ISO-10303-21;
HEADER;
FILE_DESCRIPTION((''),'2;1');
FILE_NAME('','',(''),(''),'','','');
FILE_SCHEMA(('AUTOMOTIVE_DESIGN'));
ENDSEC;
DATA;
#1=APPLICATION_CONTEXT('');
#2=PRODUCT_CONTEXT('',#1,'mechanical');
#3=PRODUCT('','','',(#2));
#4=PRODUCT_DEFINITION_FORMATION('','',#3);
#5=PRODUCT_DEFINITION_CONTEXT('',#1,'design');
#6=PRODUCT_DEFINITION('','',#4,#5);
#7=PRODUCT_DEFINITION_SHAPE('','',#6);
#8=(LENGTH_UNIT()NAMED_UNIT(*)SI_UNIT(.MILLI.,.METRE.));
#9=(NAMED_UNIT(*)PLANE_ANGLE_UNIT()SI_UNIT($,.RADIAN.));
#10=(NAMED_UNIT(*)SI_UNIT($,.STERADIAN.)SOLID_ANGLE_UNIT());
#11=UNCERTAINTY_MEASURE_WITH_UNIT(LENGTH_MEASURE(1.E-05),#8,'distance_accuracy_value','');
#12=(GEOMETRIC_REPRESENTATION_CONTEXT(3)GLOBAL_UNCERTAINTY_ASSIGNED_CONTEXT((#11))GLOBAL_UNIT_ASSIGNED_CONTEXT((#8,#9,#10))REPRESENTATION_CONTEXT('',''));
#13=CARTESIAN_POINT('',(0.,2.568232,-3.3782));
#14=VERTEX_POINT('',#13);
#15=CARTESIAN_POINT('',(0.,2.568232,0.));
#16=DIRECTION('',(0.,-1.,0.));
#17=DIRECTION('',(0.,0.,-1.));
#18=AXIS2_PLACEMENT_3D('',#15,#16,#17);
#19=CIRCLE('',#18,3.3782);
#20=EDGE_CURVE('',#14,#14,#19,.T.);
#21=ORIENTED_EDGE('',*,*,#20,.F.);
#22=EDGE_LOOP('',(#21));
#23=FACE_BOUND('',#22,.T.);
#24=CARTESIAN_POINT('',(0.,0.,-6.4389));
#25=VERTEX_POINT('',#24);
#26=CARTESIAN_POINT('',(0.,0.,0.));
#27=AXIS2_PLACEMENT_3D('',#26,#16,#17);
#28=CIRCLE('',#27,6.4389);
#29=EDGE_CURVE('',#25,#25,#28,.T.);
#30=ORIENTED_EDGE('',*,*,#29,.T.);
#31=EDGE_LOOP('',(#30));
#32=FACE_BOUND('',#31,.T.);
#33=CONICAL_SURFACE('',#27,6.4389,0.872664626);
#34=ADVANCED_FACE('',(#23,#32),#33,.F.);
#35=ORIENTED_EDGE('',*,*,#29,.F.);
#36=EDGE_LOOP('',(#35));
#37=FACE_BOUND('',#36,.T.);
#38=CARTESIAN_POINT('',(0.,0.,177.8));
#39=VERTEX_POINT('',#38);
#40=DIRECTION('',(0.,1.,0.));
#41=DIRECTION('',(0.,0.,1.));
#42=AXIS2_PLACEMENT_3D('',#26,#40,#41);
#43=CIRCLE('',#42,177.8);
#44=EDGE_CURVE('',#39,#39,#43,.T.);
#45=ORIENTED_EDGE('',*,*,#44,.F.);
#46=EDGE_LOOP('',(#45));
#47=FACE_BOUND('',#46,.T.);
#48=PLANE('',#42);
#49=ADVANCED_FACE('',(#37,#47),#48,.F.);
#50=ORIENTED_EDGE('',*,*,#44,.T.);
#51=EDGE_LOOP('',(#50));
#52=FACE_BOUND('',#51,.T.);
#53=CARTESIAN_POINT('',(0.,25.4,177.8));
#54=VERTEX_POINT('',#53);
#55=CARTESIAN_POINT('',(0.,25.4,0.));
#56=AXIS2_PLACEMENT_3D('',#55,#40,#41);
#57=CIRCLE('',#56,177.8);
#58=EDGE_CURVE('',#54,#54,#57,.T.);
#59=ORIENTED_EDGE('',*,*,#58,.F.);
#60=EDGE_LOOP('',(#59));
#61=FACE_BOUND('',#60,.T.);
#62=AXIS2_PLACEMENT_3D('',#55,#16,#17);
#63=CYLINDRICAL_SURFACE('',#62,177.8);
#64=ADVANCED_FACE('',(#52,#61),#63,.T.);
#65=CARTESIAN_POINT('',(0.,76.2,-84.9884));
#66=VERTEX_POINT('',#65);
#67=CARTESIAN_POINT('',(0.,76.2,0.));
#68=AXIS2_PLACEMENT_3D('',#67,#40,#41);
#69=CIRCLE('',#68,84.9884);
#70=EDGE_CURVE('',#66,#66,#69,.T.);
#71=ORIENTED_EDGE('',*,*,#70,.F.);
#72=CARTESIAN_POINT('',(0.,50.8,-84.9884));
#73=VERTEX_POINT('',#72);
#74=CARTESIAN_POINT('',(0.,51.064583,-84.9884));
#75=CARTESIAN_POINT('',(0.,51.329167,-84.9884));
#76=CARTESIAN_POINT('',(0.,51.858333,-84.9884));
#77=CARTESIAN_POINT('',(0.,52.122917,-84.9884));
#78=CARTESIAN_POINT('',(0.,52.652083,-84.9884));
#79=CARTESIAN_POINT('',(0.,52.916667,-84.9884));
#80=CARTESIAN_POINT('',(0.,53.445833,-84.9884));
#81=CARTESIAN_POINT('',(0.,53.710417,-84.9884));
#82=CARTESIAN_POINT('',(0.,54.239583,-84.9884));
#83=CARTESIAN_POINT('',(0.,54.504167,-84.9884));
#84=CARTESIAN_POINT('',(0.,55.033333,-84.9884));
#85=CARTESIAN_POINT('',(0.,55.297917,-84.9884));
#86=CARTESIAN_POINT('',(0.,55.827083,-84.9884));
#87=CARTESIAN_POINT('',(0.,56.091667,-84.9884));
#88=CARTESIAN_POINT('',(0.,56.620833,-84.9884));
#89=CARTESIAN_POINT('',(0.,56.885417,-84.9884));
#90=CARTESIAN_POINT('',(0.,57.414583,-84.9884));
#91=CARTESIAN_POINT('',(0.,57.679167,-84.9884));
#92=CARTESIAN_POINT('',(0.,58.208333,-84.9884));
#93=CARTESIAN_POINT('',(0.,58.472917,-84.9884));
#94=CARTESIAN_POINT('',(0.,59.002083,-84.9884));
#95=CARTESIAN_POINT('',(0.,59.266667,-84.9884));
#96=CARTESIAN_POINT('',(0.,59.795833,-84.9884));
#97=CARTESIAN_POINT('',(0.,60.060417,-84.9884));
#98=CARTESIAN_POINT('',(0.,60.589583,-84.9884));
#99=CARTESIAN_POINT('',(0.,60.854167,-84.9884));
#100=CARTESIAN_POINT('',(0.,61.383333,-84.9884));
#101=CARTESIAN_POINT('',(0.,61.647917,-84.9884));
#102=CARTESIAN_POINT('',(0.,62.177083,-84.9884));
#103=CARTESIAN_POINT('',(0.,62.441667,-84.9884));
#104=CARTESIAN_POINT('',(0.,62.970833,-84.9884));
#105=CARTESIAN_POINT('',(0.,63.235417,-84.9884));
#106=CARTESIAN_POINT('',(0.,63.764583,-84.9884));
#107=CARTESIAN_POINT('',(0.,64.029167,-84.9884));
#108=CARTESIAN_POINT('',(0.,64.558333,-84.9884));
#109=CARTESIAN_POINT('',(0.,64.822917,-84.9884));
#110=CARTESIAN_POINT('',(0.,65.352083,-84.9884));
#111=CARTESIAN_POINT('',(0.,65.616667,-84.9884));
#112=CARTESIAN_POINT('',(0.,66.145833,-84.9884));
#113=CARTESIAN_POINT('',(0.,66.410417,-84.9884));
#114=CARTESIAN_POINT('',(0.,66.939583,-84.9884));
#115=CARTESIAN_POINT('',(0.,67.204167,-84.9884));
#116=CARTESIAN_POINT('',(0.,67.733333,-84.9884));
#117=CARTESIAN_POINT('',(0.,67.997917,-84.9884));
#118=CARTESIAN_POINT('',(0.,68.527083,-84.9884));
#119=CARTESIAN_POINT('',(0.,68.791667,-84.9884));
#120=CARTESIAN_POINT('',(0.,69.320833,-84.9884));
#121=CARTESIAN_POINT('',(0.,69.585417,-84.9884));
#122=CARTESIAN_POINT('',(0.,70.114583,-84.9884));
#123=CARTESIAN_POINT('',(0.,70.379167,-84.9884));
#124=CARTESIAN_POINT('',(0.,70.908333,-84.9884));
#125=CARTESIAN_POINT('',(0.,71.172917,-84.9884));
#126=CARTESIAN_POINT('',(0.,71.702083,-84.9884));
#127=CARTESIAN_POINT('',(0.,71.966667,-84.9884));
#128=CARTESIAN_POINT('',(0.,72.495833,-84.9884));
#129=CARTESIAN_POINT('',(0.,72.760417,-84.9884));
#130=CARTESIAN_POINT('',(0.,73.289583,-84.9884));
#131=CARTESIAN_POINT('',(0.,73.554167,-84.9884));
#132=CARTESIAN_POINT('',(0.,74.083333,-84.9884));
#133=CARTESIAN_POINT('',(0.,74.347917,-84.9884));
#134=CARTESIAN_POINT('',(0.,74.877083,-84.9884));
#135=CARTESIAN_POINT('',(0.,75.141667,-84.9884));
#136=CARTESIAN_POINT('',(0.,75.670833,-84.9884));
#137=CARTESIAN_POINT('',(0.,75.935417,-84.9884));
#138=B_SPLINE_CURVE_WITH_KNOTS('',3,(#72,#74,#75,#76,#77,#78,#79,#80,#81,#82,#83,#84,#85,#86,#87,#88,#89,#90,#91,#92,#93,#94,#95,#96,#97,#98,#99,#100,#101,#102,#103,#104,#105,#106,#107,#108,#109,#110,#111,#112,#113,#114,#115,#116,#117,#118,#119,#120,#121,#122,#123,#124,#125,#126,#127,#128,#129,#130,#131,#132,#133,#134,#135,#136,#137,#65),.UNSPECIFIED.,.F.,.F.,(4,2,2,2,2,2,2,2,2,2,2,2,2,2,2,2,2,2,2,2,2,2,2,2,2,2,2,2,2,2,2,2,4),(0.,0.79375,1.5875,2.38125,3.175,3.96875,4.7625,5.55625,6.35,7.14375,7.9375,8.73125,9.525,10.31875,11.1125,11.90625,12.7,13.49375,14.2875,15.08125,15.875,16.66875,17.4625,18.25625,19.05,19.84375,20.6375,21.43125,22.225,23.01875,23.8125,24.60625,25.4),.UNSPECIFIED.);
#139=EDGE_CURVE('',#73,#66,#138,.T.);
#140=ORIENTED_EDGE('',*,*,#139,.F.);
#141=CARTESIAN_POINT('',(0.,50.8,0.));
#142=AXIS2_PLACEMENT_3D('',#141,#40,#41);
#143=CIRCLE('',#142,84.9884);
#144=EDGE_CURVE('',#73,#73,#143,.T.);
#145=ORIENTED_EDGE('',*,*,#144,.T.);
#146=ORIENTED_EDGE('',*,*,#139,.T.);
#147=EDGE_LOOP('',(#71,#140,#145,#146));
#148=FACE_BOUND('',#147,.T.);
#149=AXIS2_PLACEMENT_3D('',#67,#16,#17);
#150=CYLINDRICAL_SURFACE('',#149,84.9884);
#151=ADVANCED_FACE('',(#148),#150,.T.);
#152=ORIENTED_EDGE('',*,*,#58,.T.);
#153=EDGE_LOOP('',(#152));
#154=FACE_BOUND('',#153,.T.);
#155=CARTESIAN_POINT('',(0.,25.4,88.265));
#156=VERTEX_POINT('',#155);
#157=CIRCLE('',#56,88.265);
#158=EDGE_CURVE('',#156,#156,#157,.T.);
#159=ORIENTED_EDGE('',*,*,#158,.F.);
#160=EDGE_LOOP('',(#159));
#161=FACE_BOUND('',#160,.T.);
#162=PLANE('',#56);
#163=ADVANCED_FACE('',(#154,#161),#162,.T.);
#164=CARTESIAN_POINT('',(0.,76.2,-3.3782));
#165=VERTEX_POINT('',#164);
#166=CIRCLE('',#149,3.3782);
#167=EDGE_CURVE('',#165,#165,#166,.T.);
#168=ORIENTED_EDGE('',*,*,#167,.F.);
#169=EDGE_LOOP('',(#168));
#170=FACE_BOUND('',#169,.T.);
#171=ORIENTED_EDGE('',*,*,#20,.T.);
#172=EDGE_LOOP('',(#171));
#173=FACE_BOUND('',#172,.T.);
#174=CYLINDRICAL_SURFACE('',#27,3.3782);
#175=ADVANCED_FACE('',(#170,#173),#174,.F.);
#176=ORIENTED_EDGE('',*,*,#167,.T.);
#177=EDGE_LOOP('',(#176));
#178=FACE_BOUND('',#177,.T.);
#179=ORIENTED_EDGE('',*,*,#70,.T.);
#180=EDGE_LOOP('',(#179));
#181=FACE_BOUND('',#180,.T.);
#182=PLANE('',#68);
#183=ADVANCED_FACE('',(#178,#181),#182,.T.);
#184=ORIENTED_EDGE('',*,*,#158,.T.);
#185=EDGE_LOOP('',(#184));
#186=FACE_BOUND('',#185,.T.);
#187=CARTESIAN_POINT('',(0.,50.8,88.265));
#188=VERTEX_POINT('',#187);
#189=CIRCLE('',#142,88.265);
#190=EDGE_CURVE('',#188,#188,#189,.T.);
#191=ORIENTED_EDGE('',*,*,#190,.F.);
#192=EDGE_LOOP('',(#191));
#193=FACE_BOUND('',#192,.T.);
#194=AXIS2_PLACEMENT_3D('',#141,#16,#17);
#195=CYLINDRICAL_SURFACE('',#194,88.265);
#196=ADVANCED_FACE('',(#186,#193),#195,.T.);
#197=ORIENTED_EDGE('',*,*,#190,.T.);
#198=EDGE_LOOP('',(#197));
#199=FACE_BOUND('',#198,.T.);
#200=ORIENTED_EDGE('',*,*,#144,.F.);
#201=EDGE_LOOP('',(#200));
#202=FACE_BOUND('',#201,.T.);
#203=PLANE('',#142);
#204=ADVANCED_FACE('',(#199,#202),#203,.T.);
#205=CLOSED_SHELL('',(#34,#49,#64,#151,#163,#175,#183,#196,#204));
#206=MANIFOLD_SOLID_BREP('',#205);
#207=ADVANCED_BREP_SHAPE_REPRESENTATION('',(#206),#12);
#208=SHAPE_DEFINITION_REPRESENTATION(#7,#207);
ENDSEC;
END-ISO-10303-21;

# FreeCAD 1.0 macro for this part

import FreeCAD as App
import Part
import Sketcher
from FreeCAD import Vector
Q = App.Units.Quantity

doc = App.newDocument("Part")
body = doc.addObject("PartDesign::Body", "Body")

sketch1 = body.newObject("Sketcher::SketchObject", "Sketch")
sketch1.AttachmentSupport = (doc.getObject("XZ_Plane"), [""])
sketch1.MapMode = "FlatFace"
sketch1.addGeometry(Part.Circle(Vector(0, 0, 0), Vector(0, 0, 1), 85), False)
sketch1.addConstraint(Sketcher.Constraint("Coincident", 0, 3, -1, 1))
sketch1.addConstraint(Sketcher.Constraint("Diameter", 0, Q("6.692 in")))
pad1 = body.newObject("PartDesign::Pad", "Pad")
pad1.Profile = sketch1
pad1.Length = Q("3 in")
pad1.Reversed = True

sketch2 = body.newObject("Sketcher::SketchObject", "Sketch001")
sketch2.AttachmentSupport = (doc.getObject("XZ_Plane"), [""])
sketch2.MapMode = "FlatFace"
sketch2.addGeometry(Part.Circle(Vector(0, 0, 0), Vector(0, 0, 1), 88), False)
sketch2.addGeometry(Part.Circle(Vector(0, 0, 0), Vector(0, 0, 1), 85), False)
sketch2.addConstraint(Sketcher.Constraint("Coincident", 0, 3, -1, 1))
sketch2.addConstraint(Sketcher.Constraint("Coincident", 1, 3, -1, 1))
sketch2.addConstraint(Sketcher.Constraint("Diameter", 0, Q("6.95 in")))
sketch2.addConstraint(Sketcher.Constraint("Diameter", 1, Q("6.692 in")))
pad2 = body.newObject("PartDesign::Pad", "Pad001")
pad2.Profile = sketch2
pad2.Length = Q("2 in")
pad2.Reversed = True

sketch3 = body.newObject("Sketcher::SketchObject", "Sketch002")
sketch3.AttachmentSupport = (doc.getObject("XZ_Plane"), [""])
sketch3.MapMode = "FlatFace"
sketch3.addGeometry(Part.Circle(Vector(0, 0, 0), Vector(0, 0, 1), 178), False)
sketch3.addGeometry(Part.Circle(Vector(0, 0, 0), Vector(0, 0, 1), 88), False)
sketch3.addConstraint(Sketcher.Constraint("Coincident", 0, 3, -1, 1))
sketch3.addConstraint(Sketcher.Constraint("Coincident", 1, 3, -1, 1))
sketch3.addConstraint(Sketcher.Constraint("Diameter", 0, Q("14 in")))
sketch3.addConstraint(Sketcher.Constraint("Diameter", 1, Q("6.95 in")))
pad3 = body.newObject("PartDesign::Pad", "Pad002")
pad3.Profile = sketch3
pad3.Length = Q("1 in")
pad3.Reversed = True

sketch4 = body.newObject("Sketcher::SketchObject", "Sketch003")
sketch4.AttachmentSupport = (doc.getObject("XZ_Plane"), [""])
sketch4.MapMode = "FlatFace"
sketch4.addGeometry(Part.Circle(Vector(0, 0, 0), Vector(0, 0, 1), 3.4), False)
sketch4.addConstraint(Sketcher.Constraint("Coincident", 0, 3, -1, 1))
sketch4.addConstraint(Sketcher.Constraint("Diameter", 0, Q("0.266 in")))
doc.recompute()
hole = body.newObject("PartDesign::Hole", "Hole")
hole.Profile = sketch4
hole.ThreadType = "None"
hole.Diameter = Q("0.266 in")
hole.DepthType = "ThroughAll"
hole.HoleCutType = "Countersink"
hole.HoleCutDiameter = Q("0.507 in")
hole.HoleCutCountersinkAngle = 100

doc.recompute()
